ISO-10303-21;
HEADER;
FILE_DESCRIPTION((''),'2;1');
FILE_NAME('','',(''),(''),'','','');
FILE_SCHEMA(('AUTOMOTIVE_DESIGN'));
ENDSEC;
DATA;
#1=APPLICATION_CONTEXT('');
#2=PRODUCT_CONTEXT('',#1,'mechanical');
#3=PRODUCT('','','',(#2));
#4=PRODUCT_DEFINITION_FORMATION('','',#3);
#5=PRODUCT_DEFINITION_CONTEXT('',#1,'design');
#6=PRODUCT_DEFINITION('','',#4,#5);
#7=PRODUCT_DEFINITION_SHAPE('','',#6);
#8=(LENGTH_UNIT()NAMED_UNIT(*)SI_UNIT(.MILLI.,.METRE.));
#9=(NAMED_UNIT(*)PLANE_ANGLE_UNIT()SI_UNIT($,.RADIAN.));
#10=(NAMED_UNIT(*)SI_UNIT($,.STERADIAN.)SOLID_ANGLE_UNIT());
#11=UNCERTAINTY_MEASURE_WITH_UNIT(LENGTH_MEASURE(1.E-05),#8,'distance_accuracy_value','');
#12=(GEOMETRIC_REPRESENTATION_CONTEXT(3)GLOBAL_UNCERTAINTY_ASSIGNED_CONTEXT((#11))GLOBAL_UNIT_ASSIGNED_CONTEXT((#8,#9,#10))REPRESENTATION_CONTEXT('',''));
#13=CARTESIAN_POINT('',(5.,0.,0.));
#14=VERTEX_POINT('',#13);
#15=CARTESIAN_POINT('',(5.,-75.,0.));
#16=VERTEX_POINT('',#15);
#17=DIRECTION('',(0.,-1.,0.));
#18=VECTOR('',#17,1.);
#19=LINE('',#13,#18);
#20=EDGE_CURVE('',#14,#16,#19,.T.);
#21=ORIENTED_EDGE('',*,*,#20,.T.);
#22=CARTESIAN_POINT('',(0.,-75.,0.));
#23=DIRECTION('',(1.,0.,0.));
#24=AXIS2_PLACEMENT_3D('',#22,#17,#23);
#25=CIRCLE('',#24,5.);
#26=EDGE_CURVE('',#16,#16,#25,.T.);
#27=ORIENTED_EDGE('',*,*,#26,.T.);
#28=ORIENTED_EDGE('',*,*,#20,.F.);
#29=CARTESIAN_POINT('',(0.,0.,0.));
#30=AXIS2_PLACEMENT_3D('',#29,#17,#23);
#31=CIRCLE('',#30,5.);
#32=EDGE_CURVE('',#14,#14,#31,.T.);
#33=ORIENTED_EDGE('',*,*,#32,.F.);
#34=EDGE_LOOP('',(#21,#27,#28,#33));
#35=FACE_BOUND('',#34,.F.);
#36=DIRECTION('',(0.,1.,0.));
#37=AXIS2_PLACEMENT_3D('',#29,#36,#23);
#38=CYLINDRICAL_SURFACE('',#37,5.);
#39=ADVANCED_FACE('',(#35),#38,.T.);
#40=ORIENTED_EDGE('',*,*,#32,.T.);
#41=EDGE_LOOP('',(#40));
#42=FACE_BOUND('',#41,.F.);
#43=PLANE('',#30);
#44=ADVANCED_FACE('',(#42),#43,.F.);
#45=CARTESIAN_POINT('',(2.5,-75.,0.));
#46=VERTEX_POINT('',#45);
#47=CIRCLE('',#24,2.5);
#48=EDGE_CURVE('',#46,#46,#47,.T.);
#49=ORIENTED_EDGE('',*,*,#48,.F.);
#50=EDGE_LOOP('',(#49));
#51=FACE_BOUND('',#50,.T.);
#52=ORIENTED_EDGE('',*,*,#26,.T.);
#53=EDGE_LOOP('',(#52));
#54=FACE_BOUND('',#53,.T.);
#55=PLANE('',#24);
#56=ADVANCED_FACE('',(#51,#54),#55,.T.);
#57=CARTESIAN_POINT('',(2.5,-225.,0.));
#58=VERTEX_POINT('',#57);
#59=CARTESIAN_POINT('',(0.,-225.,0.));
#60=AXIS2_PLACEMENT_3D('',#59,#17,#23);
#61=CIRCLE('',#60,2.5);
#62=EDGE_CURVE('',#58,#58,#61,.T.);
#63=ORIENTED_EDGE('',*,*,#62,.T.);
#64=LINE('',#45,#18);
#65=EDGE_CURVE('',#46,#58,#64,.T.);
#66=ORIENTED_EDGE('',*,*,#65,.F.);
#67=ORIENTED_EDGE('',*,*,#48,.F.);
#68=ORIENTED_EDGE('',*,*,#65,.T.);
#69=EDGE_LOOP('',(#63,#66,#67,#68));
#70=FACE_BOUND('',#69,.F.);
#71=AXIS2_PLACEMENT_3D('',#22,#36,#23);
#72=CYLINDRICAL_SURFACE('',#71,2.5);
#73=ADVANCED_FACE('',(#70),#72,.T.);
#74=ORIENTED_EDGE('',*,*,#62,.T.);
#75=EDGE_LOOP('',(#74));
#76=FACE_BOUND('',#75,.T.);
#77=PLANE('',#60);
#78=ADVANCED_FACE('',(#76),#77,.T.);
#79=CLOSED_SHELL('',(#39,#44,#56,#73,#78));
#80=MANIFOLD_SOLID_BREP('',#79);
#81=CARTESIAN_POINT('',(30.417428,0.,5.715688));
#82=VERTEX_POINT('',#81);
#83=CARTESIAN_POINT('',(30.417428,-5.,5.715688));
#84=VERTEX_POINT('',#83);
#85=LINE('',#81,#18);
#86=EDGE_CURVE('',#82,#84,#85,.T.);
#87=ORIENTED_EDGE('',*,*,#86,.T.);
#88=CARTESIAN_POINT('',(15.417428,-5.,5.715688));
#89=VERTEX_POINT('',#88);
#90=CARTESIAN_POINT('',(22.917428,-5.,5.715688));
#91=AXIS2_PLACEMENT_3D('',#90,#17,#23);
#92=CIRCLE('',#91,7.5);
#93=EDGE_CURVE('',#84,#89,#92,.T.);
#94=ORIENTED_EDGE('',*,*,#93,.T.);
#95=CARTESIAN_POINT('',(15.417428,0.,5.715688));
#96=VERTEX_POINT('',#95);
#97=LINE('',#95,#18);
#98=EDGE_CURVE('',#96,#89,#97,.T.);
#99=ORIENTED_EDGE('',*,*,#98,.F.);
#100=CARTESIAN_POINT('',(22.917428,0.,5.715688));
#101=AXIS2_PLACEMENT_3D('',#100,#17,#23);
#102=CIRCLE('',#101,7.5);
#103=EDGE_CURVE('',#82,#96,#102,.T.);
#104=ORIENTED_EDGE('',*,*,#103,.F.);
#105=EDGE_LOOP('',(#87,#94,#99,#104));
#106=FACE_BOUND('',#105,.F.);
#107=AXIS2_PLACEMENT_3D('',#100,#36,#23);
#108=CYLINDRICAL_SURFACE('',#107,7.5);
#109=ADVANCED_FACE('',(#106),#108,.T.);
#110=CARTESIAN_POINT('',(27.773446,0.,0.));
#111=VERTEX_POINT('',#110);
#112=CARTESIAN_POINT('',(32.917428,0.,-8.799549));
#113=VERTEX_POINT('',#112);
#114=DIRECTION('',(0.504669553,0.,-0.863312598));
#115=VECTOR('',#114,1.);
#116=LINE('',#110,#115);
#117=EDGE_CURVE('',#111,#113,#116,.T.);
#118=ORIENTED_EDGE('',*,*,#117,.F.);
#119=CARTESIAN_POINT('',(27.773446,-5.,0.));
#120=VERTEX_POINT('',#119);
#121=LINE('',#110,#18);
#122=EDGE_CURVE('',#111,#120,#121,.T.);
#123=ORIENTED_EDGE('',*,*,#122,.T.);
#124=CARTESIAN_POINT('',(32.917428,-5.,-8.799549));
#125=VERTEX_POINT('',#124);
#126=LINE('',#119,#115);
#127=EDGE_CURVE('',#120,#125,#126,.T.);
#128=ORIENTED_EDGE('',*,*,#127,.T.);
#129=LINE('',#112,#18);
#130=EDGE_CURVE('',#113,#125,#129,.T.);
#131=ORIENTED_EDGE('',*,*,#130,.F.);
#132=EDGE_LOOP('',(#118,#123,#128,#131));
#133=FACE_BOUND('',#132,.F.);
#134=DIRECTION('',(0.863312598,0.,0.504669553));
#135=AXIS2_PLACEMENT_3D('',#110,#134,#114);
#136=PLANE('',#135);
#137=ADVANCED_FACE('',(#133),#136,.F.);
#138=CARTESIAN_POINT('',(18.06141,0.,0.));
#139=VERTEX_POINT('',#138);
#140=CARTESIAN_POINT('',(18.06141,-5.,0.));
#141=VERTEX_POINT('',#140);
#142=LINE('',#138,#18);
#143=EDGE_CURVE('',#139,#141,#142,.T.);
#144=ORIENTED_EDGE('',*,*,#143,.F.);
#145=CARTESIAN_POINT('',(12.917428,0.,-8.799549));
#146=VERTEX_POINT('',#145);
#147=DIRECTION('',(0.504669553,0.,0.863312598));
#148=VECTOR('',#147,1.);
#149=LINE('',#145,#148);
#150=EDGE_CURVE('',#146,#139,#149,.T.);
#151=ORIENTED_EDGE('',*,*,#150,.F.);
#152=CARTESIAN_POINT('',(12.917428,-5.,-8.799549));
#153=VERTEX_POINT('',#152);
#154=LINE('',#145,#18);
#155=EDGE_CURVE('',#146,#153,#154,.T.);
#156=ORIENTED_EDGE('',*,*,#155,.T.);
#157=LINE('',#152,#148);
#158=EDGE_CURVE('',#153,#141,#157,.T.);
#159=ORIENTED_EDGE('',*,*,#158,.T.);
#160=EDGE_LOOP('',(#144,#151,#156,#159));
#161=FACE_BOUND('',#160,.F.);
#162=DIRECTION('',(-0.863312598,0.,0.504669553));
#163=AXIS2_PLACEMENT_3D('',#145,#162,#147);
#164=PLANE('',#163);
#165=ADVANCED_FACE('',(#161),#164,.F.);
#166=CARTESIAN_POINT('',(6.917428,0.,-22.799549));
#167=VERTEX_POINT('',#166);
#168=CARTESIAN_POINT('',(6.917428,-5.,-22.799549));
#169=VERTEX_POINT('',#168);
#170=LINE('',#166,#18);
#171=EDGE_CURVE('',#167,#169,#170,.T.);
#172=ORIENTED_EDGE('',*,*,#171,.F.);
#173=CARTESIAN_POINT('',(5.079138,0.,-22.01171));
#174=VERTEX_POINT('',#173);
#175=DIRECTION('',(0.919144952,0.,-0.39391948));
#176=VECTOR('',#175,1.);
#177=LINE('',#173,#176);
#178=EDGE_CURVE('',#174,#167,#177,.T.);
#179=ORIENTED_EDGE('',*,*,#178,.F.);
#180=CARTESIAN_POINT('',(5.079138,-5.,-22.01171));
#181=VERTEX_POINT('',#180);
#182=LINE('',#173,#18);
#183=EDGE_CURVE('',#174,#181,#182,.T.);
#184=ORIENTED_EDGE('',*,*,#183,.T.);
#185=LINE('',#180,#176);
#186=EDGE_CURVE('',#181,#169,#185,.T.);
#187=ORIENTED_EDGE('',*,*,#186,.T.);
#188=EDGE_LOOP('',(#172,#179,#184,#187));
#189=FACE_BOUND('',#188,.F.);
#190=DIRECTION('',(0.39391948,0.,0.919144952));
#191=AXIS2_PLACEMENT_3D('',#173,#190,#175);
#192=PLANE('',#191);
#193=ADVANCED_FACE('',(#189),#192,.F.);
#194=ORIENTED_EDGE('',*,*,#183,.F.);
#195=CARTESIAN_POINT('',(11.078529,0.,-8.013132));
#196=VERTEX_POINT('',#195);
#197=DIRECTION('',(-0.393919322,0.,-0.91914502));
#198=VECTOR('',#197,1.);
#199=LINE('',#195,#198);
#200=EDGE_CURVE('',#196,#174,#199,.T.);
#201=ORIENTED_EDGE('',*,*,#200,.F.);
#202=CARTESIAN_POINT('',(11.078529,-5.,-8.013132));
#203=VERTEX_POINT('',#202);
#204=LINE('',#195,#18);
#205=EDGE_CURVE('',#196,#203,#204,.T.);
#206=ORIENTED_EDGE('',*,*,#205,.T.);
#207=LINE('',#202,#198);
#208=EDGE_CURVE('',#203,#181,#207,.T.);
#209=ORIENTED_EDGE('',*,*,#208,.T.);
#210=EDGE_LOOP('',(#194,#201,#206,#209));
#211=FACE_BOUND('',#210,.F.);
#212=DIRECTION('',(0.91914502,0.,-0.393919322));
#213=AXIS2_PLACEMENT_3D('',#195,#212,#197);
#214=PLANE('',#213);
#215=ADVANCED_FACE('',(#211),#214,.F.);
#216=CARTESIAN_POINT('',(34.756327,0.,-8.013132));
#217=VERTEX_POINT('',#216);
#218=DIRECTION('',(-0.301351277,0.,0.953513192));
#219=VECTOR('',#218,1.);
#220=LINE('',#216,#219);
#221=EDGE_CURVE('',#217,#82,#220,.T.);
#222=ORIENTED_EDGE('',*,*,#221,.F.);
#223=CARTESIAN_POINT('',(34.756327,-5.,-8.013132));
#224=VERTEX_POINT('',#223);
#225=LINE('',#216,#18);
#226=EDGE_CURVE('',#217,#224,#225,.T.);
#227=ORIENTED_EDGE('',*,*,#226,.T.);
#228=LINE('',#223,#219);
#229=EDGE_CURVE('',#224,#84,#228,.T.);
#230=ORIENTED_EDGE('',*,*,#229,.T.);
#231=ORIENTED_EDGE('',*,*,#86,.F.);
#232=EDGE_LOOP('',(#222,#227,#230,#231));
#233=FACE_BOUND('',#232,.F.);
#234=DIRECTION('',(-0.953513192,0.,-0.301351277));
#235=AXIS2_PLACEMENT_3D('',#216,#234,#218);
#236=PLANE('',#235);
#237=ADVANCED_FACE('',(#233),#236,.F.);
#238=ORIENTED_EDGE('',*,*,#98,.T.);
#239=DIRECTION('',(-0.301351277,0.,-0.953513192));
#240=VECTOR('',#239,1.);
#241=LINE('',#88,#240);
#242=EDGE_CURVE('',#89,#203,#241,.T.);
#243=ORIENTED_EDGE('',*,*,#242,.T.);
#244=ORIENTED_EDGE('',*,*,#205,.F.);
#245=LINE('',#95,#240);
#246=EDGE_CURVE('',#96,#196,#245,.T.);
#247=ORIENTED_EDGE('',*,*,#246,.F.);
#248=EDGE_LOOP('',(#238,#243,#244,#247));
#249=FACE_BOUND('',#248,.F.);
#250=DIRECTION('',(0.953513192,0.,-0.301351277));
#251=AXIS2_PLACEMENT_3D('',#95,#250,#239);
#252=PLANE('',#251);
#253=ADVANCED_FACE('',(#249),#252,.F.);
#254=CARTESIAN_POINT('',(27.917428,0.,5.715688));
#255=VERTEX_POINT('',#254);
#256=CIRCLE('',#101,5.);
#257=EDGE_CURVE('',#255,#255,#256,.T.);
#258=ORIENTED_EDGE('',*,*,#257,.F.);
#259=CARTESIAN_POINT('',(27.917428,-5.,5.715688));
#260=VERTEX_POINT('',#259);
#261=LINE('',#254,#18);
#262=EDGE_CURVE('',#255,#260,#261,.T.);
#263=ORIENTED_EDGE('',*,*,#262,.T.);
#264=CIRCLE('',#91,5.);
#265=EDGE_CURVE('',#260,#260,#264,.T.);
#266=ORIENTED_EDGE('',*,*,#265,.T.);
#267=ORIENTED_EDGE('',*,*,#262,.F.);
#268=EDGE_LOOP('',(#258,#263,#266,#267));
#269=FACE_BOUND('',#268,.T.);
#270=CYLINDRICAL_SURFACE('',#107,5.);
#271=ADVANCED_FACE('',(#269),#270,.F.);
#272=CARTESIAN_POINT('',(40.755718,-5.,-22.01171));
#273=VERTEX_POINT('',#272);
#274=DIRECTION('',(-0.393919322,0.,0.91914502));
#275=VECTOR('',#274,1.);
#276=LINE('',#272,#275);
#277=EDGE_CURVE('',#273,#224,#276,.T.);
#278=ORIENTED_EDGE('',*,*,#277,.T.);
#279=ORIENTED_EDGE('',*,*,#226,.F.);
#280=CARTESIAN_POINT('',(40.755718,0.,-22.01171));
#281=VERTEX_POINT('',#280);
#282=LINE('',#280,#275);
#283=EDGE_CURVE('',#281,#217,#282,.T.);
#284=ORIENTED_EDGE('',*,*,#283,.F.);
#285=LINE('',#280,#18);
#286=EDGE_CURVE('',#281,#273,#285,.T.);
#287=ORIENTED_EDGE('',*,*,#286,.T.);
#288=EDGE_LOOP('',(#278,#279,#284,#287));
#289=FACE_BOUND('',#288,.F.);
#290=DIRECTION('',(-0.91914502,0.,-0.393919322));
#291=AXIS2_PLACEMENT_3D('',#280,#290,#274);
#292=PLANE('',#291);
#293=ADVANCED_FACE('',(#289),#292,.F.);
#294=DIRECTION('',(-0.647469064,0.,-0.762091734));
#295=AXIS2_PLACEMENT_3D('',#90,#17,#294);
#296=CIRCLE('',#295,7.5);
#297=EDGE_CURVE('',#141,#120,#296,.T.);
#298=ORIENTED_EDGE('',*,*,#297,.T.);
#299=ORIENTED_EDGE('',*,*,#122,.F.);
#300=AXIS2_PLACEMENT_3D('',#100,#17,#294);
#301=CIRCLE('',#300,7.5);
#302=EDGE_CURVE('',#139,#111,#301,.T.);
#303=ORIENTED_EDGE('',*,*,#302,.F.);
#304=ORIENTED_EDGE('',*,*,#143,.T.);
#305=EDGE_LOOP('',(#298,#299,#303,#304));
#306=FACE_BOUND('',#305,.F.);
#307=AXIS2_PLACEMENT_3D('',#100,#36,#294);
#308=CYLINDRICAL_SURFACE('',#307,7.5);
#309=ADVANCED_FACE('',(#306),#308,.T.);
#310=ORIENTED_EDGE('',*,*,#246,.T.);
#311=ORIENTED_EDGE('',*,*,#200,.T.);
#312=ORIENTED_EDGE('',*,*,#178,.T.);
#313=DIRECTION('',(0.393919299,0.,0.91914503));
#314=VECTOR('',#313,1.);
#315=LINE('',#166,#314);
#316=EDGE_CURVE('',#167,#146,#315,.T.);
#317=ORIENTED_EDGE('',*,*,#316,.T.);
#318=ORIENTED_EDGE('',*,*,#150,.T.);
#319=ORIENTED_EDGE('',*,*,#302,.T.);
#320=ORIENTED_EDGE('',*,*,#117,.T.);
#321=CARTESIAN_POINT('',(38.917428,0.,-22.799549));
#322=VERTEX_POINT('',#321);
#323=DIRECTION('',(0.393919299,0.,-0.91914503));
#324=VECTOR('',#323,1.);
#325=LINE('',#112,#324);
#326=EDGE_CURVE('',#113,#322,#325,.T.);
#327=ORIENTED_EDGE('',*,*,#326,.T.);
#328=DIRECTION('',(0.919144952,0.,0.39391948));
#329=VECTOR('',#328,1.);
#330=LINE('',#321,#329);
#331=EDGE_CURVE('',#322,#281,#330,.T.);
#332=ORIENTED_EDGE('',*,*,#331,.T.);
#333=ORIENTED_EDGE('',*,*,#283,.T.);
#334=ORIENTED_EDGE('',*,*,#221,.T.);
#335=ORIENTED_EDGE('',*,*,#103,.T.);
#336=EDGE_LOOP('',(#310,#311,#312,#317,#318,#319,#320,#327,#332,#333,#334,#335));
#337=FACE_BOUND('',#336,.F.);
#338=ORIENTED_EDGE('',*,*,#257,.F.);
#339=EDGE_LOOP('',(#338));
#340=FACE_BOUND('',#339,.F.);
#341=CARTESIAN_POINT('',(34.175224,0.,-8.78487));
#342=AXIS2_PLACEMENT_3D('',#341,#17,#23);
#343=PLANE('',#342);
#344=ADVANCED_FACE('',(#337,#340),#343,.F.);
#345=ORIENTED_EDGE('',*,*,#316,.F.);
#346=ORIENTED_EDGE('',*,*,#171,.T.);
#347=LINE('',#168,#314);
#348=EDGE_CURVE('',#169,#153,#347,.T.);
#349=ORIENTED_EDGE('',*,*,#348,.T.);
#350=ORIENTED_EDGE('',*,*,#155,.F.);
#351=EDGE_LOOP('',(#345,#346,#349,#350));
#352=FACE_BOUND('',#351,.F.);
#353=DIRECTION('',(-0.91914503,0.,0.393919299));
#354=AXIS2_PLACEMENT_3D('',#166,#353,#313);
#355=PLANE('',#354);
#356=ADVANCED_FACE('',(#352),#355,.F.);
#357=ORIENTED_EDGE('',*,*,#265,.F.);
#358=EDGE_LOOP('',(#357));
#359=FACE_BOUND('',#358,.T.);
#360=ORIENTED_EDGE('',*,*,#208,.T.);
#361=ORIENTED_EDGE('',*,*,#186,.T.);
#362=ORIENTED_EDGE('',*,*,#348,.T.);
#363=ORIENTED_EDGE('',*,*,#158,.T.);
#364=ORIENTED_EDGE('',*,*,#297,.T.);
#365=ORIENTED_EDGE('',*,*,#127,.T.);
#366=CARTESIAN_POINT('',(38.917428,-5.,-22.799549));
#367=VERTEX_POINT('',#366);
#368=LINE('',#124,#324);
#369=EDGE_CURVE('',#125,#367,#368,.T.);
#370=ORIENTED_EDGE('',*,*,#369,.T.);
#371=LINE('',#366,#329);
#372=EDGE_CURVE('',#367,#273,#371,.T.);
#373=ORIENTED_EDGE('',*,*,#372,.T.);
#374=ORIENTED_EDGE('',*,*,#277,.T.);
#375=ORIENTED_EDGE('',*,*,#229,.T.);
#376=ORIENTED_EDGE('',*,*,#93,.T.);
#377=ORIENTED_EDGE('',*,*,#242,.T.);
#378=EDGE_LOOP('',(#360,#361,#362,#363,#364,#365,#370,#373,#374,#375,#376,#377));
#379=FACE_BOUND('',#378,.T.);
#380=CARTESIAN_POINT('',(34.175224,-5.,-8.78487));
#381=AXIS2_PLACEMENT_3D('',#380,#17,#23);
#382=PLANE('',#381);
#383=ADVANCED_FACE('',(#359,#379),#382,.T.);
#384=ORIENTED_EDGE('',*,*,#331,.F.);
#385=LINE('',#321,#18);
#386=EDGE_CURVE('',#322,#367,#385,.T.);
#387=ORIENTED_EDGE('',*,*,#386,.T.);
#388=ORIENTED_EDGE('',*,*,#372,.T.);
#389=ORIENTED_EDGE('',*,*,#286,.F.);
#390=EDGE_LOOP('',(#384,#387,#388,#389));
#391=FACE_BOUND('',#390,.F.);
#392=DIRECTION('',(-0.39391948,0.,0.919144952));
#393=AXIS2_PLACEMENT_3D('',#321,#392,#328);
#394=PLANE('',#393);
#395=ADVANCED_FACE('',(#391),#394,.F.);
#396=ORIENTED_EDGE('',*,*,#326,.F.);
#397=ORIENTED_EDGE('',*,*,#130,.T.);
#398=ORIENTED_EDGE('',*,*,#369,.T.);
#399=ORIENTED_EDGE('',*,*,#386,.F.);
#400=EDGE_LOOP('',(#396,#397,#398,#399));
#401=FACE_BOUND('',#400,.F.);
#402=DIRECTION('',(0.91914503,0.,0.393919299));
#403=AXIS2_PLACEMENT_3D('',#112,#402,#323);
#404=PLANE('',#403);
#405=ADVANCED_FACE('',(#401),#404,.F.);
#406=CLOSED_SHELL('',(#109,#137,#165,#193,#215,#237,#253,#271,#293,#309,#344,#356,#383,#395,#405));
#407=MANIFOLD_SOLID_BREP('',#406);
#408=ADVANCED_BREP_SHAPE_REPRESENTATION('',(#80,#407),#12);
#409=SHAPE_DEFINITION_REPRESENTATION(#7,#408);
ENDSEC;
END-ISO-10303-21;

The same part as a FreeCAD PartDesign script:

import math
import FreeCAD as App
import Part
import Sketcher
from FreeCAD import Vector

doc = App.newDocument("Part")
body = doc.addObject("PartDesign::Body", "Body")

# Sketch on XZ plane
sketch1 = body.newObject("Sketcher::SketchObject", "Sketch")
sketch1.AttachmentSupport = (doc.getObject("XZ_Plane"), [""])
sketch1.MapMode = "FlatFace"
sketch1.addGeometry(Part.Circle(Vector(0, 0, 0), Vector(0, 0, 1), 5), False)
sketch1.addConstraint([
    Sketcher.Constraint("Coincident", 0, 3, -1, 1),
    Sketcher.Constraint("Diameter", 0, 10.0),
])
pad1 = body.newObject("PartDesign::Pad", "Pad")
pad1.Profile = sketch1
pad1.Length = 75

# Sketch on XZ plane
sketch2 = body.newObject("Sketcher::SketchObject", "Sketch001")
sketch2.AttachmentSupport = (doc.getObject("XZ_Plane"), [""])
sketch2.MapMode = "FlatFace"
sketch2.AttachmentOffset = App.Placement(Vector(0, 0, 75), App.Rotation())
sketch2.addGeometry(Part.Circle(Vector(0, 0, 0), Vector(0, 0, 1), 2.5), False)
sketch2.addConstraint([
    Sketcher.Constraint("Coincident", 0, 3, -1, 1),
    Sketcher.Constraint("Diameter", 0, 5.0),
])
pad2 = body.newObject("PartDesign::Pad", "Pad001")
pad2.Profile = sketch2
pad2.Length = 150
body2 = doc.addObject("PartDesign::Body", "Body001")

# Sketch on XZ plane
sketch3 = body2.newObject("Sketcher::SketchObject", "Sketch002")
sketch3.AttachmentSupport = (doc.getObject("XZ_Plane001"), [""])
sketch3.MapMode = "FlatFace"
sketch3.addGeometry([
    Part.LineSegment(Vector(34.8, -8, 0), Vector(30.4, 5.7, 0)),  # 0
    Part.ArcOfCircle(Part.Circle(Vector(22.9, 5.7, 0), Vector(0, 0, 1), 7.5), math.radians(0), math.radians(180)),  # 1
    Part.LineSegment(Vector(15.4, 5.7, 0), Vector(11.1, -8, 0)),  # 2
    Part.LineSegment(Vector(11.1, -8, 0), Vector(5.1, -22, 0)),  # 3
    Part.LineSegment(Vector(5.1, -22, 0), Vector(6.9, -22.8, 0)),  # 4
    Part.LineSegment(Vector(6.9, -22.8, 0), Vector(12.9, -8.8, 0)),  # 5
    Part.LineSegment(Vector(12.9, -8.8, 0), Vector(18.1, 0, 0)),  # 6
    Part.ArcOfCircle(Part.Circle(Vector(22.9, 5.7, 0), Vector(0, 0, 1), 7.5), math.radians(-130), math.radians(-50)),  # 7
    Part.LineSegment(Vector(27.8, 0, 0), Vector(32.9, -8.8, 0)),  # 8
    Part.LineSegment(Vector(32.9, -8.8, 0), Vector(38.9, -22.8, 0)),  # 9
    Part.LineSegment(Vector(38.9, -22.8, 0), Vector(40.8, -22, 0)),  # 10
    Part.LineSegment(Vector(40.8, -22, 0), Vector(34.8, -8, 0)),  # 11
    Part.Circle(Vector(22.9, 5.7, 0), Vector(0, 0, 1), 5),  # 12
], False)
sketch3.addConstraint([
    Sketcher.Constraint("Coincident", 0, 2, 1, 1),
    Sketcher.Constraint("Coincident", 1, 2, 2, 1),
    Sketcher.Constraint("Coincident", 2, 2, 3, 1),
    Sketcher.Constraint("Coincident", 3, 2, 4, 1),
    Sketcher.Constraint("Coincident", 4, 2, 5, 1),
    Sketcher.Constraint("Coincident", 5, 2, 6, 1),
    Sketcher.Constraint("Coincident", 6, 2, 7, 1),
    Sketcher.Constraint("Coincident", 7, 2, 8, 1),
    Sketcher.Constraint("Coincident", 8, 2, 9, 1),
    Sketcher.Constraint("Coincident", 9, 2, 10, 1),
    Sketcher.Constraint("Coincident", 10, 2, 11, 1),
    Sketcher.Constraint("Coincident", 11, 2, 0, 1),
    Sketcher.Constraint("Coincident", 7, 3, 1, 3),
    Sketcher.Constraint("Coincident", 12, 3, 1, 3),
    Sketcher.Constraint("Equal", 1, 7),
    Sketcher.Constraint("PointOnObject", 6, 2, -1),
    Sketcher.Constraint("PointOnObject", 7, 2, -1),
    Sketcher.Constraint("Perpendicular", 3, 4),
    Sketcher.Constraint("Perpendicular", 4, 5),
    Sketcher.Constraint("Perpendicular", 9, 10),
    Sketcher.Constraint("Perpendicular", 10, 11),
    Sketcher.Constraint("Horizontal", 12, 3, 0, 2),
    Sketcher.Constraint("Horizontal", 0, 2, 1, 2),
    Sketcher.Constraint("Horizontal", 5, 2, 8, 2),
    Sketcher.Constraint("Horizontal", 4, 2, 9, 2),
    Sketcher.Constraint("Horizontal", 3, 2, 10, 2),
    Sketcher.Constraint("Horizontal", 2, 2, 11, 2),
    Sketcher.Constraint("Equal", 0, 2),
    Sketcher.Constraint("Equal", 6, 8),
    Sketcher.Constraint("Diameter", 12, 10.0),
    Sketcher.Constraint("Radius", 1, 7.5),
    Sketcher.Constraint("Distance", 4, 2.0),
    Sketcher.Constraint("DistanceX", 4, 2, 1, 3, 16.0),
    Sketcher.Constraint("DistanceX", 4, 2, 5, 2, 6.0),
    Sketcher.Constraint("DistanceY", 4, 2, 5, 2, 14.0),
    Sketcher.Constraint("Distance", 3, 15.229999),
    Sketcher.Constraint("DistanceY", 3, 2, 1, 2, 27.727398),
    Sketcher.Constraint("DistanceX", -1, 1, 1, 3, 22.917428),
    Sketcher.Constraint("DistanceY", -1, 1, 7, 3, 5.715688),
])
pad3 = body2.newObject("PartDesign::Pad", "Pad002")
pad3.Profile = sketch3
pad3.Length = 5

doc.recompute()
